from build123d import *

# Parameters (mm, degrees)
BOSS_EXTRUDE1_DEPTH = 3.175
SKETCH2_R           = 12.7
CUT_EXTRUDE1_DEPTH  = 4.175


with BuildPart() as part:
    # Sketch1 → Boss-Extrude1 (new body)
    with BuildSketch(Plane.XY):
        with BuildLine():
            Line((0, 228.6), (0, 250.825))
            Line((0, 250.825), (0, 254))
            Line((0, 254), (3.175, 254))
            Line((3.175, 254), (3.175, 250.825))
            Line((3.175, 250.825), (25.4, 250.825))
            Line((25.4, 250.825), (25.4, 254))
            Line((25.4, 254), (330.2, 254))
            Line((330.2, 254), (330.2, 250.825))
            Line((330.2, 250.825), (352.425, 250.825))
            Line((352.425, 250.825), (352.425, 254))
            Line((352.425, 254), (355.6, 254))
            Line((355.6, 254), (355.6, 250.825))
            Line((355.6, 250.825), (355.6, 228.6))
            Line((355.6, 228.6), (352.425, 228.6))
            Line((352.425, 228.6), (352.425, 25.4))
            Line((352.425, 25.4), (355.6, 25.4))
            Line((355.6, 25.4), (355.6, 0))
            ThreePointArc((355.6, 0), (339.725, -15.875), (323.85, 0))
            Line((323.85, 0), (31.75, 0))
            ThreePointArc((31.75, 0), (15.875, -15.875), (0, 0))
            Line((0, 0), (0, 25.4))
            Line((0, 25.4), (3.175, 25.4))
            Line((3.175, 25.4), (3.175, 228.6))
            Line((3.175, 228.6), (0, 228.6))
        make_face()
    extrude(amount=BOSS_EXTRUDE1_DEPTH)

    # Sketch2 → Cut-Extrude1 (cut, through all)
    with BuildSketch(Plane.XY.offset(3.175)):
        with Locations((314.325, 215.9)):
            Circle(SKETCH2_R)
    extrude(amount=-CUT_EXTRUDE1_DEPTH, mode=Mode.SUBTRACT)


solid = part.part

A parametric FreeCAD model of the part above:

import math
import FreeCAD as App
import Part
import Sketcher
from FreeCAD import Vector
Q = App.Units.Quantity

doc = App.newDocument("Part")
body = doc.addObject("PartDesign::Body", "Body")

sketch1 = body.newObject("Sketcher::SketchObject", "Sketch")
sketch1.AttachmentSupport = (doc.getObject("XY_Plane"), [""])
sketch1.MapMode = "FlatFace"
sketch1.addGeometry([
    Part.LineSegment(Vector(0, 254, 0), Vector(0, 228.6, 0)),
    Part.LineSegment(Vector(0, 228.6, 0), Vector(3.2, 228.6, 0)),
    Part.LineSegment(Vector(3.2, 228.6, 0), Vector(3.2, 25.4, 0)),
    Part.LineSegment(Vector(3.2, 25.4, 0), Vector(0, 25.4, 0)),
    Part.LineSegment(Vector(0, 25.4, 0), Vector(0, 0, 0)),
    Part.ArcOfCircle(Part.Circle(Vector(15.9, 0, 0), Vector(0, 0, 1), 15.9), math.radians(180), math.radians(360)),
    Part.LineSegment(Vector(31.8, 0, 0), Vector(323.9, 0, 0)),
    Part.ArcOfCircle(Part.Circle(Vector(339.7, 0, 0), Vector(0, 0, 1), 15.9), math.radians(180), math.radians(360)),
    Part.LineSegment(Vector(355.6, 0, 0), Vector(355.6, 25.4, 0)),
    Part.LineSegment(Vector(355.6, 25.4, 0), Vector(352.4, 25.4, 0)),
    Part.LineSegment(Vector(352.4, 25.4, 0), Vector(352.4, 228.6, 0)),
    Part.LineSegment(Vector(352.4, 228.6, 0), Vector(355.6, 228.6, 0)),
    Part.LineSegment(Vector(355.6, 228.6, 0), Vector(355.6, 254, 0)),
    Part.LineSegment(Vector(355.6, 254, 0), Vector(352.4, 254, 0)),
    Part.LineSegment(Vector(352.4, 254, 0), Vector(352.4, 250.8, 0)),
    Part.LineSegment(Vector(352.4, 250.8, 0), Vector(330.2, 250.8, 0)),
    Part.LineSegment(Vector(330.2, 250.8, 0), Vector(330.2, 254, 0)),
    Part.LineSegment(Vector(330.2, 254, 0), Vector(25.4, 254, 0)),
    Part.LineSegment(Vector(25.4, 254, 0), Vector(25.4, 250.8, 0)),
    Part.LineSegment(Vector(25.4, 250.8, 0), Vector(3.2, 250.8, 0)),
    Part.LineSegment(Vector(3.2, 250.8, 0), Vector(3.2, 254, 0)),
    Part.LineSegment(Vector(3.2, 254, 0), Vector(0, 254, 0)),
], False)
sketch1.addConstraint([
    Sketcher.Constraint("Coincident", 0, 2, 1, 1),
    Sketcher.Constraint("Coincident", 1, 2, 2, 1),
    Sketcher.Constraint("Coincident", 2, 2, 3, 1),
    Sketcher.Constraint("Coincident", 3, 2, 4, 1),
    Sketcher.Constraint("Tangent", 4, 2, 5, 1),
    Sketcher.Constraint("Coincident", 5, 2, 6, 1),
    Sketcher.Constraint("Coincident", 6, 2, 7, 1),
    Sketcher.Constraint("Tangent", 7, 2, 8, 1),
    Sketcher.Constraint("Coincident", 8, 2, 9, 1),
    Sketcher.Constraint("Coincident", 9, 2, 10, 1),
    Sketcher.Constraint("Coincident", 10, 2, 11, 1),
    Sketcher.Constraint("Coincident", 11, 2, 12, 1),
    Sketcher.Constraint("Coincident", 12, 2, 13, 1),
    Sketcher.Constraint("Coincident", 13, 2, 14, 1),
    Sketcher.Constraint("Coincident", 14, 2, 15, 1),
    Sketcher.Constraint("Coincident", 15, 2, 16, 1),
    Sketcher.Constraint("Coincident", 16, 2, 17, 1),
    Sketcher.Constraint("Coincident", 17, 2, 18, 1),
    Sketcher.Constraint("Coincident", 18, 2, 19, 1),
    Sketcher.Constraint("Coincident", 19, 2, 20, 1),
    Sketcher.Constraint("Coincident", 20, 2, 21, 1),
    Sketcher.Constraint("Coincident", 21, 2, 0, 1),
    Sketcher.Constraint("Vertical", 0),
    Sketcher.Constraint("Horizontal", 1),
    Sketcher.Constraint("Vertical", 2),
    Sketcher.Constraint("Horizontal", 3),
    Sketcher.Constraint("Vertical", 4),
    Sketcher.Constraint("Horizontal", 6),
    Sketcher.Constraint("Vertical", 8),
    Sketcher.Constraint("Horizontal", 9),
    Sketcher.Constraint("Vertical", 10),
    Sketcher.Constraint("Horizontal", 11),
    Sketcher.Constraint("Vertical", 12),
    Sketcher.Constraint("Horizontal", 13),
    Sketcher.Constraint("Vertical", 14),
    Sketcher.Constraint("Horizontal", 15),
    Sketcher.Constraint("Vertical", 16),
    Sketcher.Constraint("Horizontal", 17),
    Sketcher.Constraint("Vertical", 18),
    Sketcher.Constraint("Horizontal", 19),
    Sketcher.Constraint("Vertical", 20),
    Sketcher.Constraint("Horizontal", 21),
    Sketcher.Constraint("Coincident", 4, 2, -1, 1),
    Sketcher.Constraint("Equal", 5, 7),
    Sketcher.Constraint("PointOnObject", 7, 3, -1),
    Sketcher.Constraint("PointOnObject", 0, 2, -2),
    Sketcher.Constraint("PointOnObject", 5, 2, -1),
    Sketcher.Constraint("Horizontal", 3, 2, 8, 2),
    Sketcher.Constraint("Horizontal", 1, 2, 10, 2),
    Sketcher.Constraint("Horizontal", 13, 2, 16, 2),
    Sketcher.Constraint("Horizontal", 15, 2, 18, 2),
    Sketcher.Constraint("Horizontal", 17, 2, 20, 2),
    Sketcher.Constraint("Vertical", 8, 2, 11, 2),
    Sketcher.Constraint("Vertical", 10, 2, 13, 2),
    Sketcher.Constraint("Vertical", 2, 2, 19, 2),
    Sketcher.Constraint("Equal", 3, 9),
    Sketcher.Constraint("Equal", 15, 19),
    Sketcher.Constraint("Equal", 0, 4),
    Sketcher.Constraint("Equal", 21, 14),
    Sketcher.Constraint("DistanceX", 17, 2, 17, 1, Q("12 in")),
    Sketcher.Constraint("DistanceY", 0, 2, 0, 1, Q("1 in")),
    Sketcher.Constraint("DistanceY", 2, 2, 2, 1, Q("8 in")),
    Sketcher.Constraint("DistanceX", 6, 1, 6, 2, Q("11.5 in")),
    Sketcher.Constraint("DistanceX", -1, 1, 7, 2, Q("14 in")),
    Sketcher.Constraint("DistanceX", 1, 2, 5, 3, Q("0.5 in")),
])
pad1 = body.newObject("PartDesign::Pad", "Pad")
pad1.Profile = sketch1
pad1.Length = Q("0.125 in")

sketch2 = body.newObject("Sketcher::SketchObject", "Sketch001")
sketch2.AttachmentSupport = (doc.getObject("XY_Plane"), [""])
sketch2.MapMode = "FlatFace"
sketch2.AttachmentOffset = App.Placement(Vector(0, 0, 0.125 * 25.4), App.Rotation())
sketch2.addGeometry(Part.Circle(Vector(314, 216, 0), Vector(0, 0, 1), 13), False)
sketch2.addConstraint([
    Sketcher.Constraint("Diameter", 0, Q("1 in")),
    Sketcher.Constraint("DistanceY", -1, 1, 0, 3, Q("8.5 in")),
    Sketcher.Constraint("DistanceX", -1, 1, 0, 3, Q("12.375 in")),
])
pocket1 = body.newObject("PartDesign::Pocket", "Pocket")
pocket1.Profile = sketch2
pocket1.Type = "ThroughAll"

doc.recompute()
